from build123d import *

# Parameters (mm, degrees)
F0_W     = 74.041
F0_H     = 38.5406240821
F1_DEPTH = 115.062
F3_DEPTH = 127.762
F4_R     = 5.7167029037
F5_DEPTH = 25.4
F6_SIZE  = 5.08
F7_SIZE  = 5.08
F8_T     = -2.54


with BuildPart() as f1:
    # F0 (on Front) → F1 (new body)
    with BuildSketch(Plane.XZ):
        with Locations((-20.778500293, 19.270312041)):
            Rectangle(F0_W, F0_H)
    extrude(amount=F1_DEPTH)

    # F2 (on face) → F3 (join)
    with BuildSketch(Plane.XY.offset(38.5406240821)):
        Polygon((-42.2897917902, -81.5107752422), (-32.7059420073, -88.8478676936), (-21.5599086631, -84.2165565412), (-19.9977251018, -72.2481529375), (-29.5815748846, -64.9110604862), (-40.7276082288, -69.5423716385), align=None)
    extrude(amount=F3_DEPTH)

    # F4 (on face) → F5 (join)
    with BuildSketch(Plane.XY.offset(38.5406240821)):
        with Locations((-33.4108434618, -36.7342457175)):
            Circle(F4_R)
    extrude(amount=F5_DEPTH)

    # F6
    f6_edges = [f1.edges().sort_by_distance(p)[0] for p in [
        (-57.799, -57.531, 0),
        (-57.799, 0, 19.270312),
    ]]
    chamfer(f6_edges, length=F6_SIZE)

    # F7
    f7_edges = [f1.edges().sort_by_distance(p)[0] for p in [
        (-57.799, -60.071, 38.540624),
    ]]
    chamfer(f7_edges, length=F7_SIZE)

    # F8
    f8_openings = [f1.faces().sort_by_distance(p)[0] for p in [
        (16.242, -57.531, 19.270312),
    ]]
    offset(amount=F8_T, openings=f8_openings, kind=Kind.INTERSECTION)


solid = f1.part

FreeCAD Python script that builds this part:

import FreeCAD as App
import Part
import Sketcher
Q = App.Units.Quantity


def edges_at(feature, points):
    """Names of the edges that pass closest to the given points."""
    edges = feature.Shape.Edges
    near = lambda p: min(range(len(edges)), key=lambda i: edges[i].distToShape(Part.Vertex(*p))[0])
    return sorted({f"Edge{near(p) + 1}" for p in points})


def faces_at(feature, points):
    """Names of the faces that lie closest to the given points."""
    faces = feature.Shape.Faces
    near = lambda p: min(range(len(faces)), key=lambda i: faces[i].distToShape(Part.Vertex(*p))[0])
    return sorted({f"Face{near(p) + 1}" for p in points})


def add_polygon(sketch, points):
    """Adds a closed chain of lines whose ends are joined by coincident constraints."""
    first, n = sketch.GeometryCount, len(points)
    for a, b in zip(points, points[1:] + points[:1]):
        sketch.addGeometry(Part.LineSegment(App.Vector(*a, 0), App.Vector(*b, 0)), False)
    for i in range(n):
        sketch.addConstraint(Sketcher.Constraint("Coincident", first + i, 2, first + (i + 1) % n, 1))

doc = App.newDocument("Part")
body = doc.addObject("PartDesign::Body", "Body")

# Sketch on XZ plane
sketch1 = body.newObject("Sketcher::SketchObject", "Sketch")
sketch1.AttachmentSupport = (doc.getObject("XZ_Plane"), [""])
sketch1.MapMode = "FlatFace"
add_polygon(sketch1, [(-57.799, 38.540624), (-57.799, 0), (16.242, 0), (16.242, 38.540624)])  # lines 0-3
sketch1.addConstraint([
    Sketcher.Constraint("Vertical", 0),
    Sketcher.Constraint("Horizontal", 1),
    Sketcher.Constraint("Vertical", 2),
    Sketcher.Constraint("Horizontal", 3),
    Sketcher.Constraint("PointOnObject", 0, 2, -1),
    Sketcher.Constraint("DistanceX", 1, 1, 1, 2, Q("2.915 in")),
    Sketcher.Constraint("DistanceX", 0, 2, -1, 1, 57.799),
    Sketcher.Constraint("DistanceY", 0, 2, 0, 1, 38.540624),
])
pad1 = body.newObject("PartDesign::Pad", "Pad")
pad1.Profile = sketch1
pad1.Length = Q("4.53 in")

# Sketch on XY plane
sketch2 = body.newObject("Sketcher::SketchObject", "Sketch001")
sketch2.AttachmentSupport = (doc.getObject("XY_Plane"), [""])
sketch2.MapMode = "FlatFace"
sketch2.AttachmentOffset = App.Placement(App.Vector(0, 0, 38.540624), App.Rotation())
add_polygon(sketch2, [(-42.289792, -81.510775), (-32.705942, -88.847868), (-21.559909, -84.216557), (-19.997725, -72.248153), (-29.581575, -64.91106), (-40.727608, -69.542372)])  # lines 0-5
sketch2.addConstraint([
    Sketcher.Constraint("Parallel", 0, 3),
    Sketcher.Constraint("Parallel", 1, 4),
    Sketcher.Constraint("Parallel", 2, 5),
    Sketcher.Constraint("Equal", 0, 1),
    Sketcher.Constraint("Equal", 1, 2),
    Sketcher.Constraint("Equal", 2, 3),
    Sketcher.Constraint("DistanceX", 4, 2, 1, 2, 19.1677),
    Sketcher.Constraint("DistanceX", 1, 2, -1, 1, 21.559909),
    Sketcher.Constraint("DistanceY", 3, 2, -1, 1, 64.91106),
    Sketcher.Constraint("DistanceY", 4, 2, -1, 1, 69.542372),
    Sketcher.Constraint("DistanceX", 5, 2, -1, 1, 42.289792),
    Sketcher.Constraint("DistanceX", 3, 2, 2, 2, 9.58385),
])
pad2 = body.newObject("PartDesign::Pad", "Pad001")
pad2.Profile = sketch2
pad2.Length = Q("5.03 in")

# Sketch on XY plane
sketch3 = body.newObject("Sketcher::SketchObject", "Sketch002")
sketch3.AttachmentSupport = (doc.getObject("XY_Plane"), [""])
sketch3.MapMode = "FlatFace"
sketch3.AttachmentOffset = App.Placement(App.Vector(0, 0, 38.540624), App.Rotation())
sketch3.addGeometry(Part.Circle(App.Vector(-33.410843, -36.734246, 0), App.Vector(0, 0, 1), 5.716703), False)
sketch3.addConstraint([
    Sketcher.Constraint("Diameter", 0, 11.433406),
    Sketcher.Constraint("DistanceX", 0, 3, -1, 1, 33.410843),
    Sketcher.Constraint("DistanceY", 0, 3, -1, 1, 36.734246),
])
pad3 = body.newObject("PartDesign::Pad", "Pad002")
pad3.Profile = sketch3
pad3.Length = Q("1 in")
doc.recompute()

chamfer = body.newObject("PartDesign::Chamfer", "Chamfer")
chamfer.Base = (pad3, edges_at(pad3, [(-57.799, -57.531, 0), (-57.799, 0, 19.27)]))
chamfer.Size = Q("0.2 in")
doc.recompute()

chamfer2 = body.newObject("PartDesign::Chamfer", "Chamfer001")
chamfer2.Base = (chamfer, edges_at(chamfer, [(-57.799, -60.071, 38.541)]))
chamfer2.Size = Q("0.2 in")
doc.recompute()

thickness = body.newObject("PartDesign::Thickness", "Thickness")
thickness.Base = (chamfer2, faces_at(chamfer2, [(16.242, -57.531, 19.27)]))
thickness.Value = Q("0.1 in")
thickness.Reversed = True
thickness.Join = "Intersection"

doc.recompute()
